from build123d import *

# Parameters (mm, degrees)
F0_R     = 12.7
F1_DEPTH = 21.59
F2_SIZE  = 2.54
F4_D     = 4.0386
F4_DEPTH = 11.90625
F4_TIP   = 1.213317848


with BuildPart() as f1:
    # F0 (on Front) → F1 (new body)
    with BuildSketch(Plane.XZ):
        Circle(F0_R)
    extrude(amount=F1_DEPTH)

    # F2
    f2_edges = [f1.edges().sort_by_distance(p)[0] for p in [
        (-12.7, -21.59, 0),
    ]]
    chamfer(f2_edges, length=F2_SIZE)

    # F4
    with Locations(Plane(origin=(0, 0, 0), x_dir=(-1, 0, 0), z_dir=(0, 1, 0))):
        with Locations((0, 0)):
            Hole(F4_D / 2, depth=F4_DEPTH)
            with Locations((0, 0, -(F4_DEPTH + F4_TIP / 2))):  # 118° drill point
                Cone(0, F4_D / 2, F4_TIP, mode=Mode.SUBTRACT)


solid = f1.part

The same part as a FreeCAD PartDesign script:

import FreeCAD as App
import Part
import Sketcher
Q = App.Units.Quantity


def edges_at(feature, points):
    """Names of the edges that pass closest to the given points."""
    edges = feature.Shape.Edges
    near = lambda p: min(range(len(edges)), key=lambda i: edges[i].distToShape(Part.Vertex(*p))[0])
    return sorted({f"Edge{near(p) + 1}" for p in points})

doc = App.newDocument("Part")
body = doc.addObject("PartDesign::Body", "Body")

sketch1 = doc.addObject("Sketcher::SketchObject", "Sketch")
body.addObject(sketch1)
sketch1.AttachmentSupport = (doc.XZ_Plane, [""])
sketch1.MapMode = "FlatFace"
sketch1.addGeometry(Part.Circle(App.Vector(0, 0, 0), App.Vector(0, 0, 1), 13), False)
sketch1.addConstraint([
    Sketcher.Constraint("Coincident", 0, 3, -1, 1),
    Sketcher.Constraint("Diameter", 0, Q("1 in")),
])
pad1 = doc.addObject("PartDesign::Pad", "Pad")
body.addObject(pad1)
pad1.Profile = sketch1
pad1.Length = Q("0.85 in")
doc.recompute()

chamfer = doc.addObject("PartDesign::Chamfer", "Chamfer")
body.addObject(chamfer)
chamfer.Base = (pad1, edges_at(pad1, [(-12.7, -21.59, 0)]))
chamfer.Size = Q("0.1 in")

sketch2 = doc.addObject("Sketcher::SketchObject", "Sketch001")
body.addObject(sketch2)
sketch2.AttachmentSupport = (doc.XZ_Plane, [""])
sketch2.MapMode = "FlatFace"
sketch2.addGeometry(Part.Circle(App.Vector(0, 0, 0), App.Vector(0, 0, 1), 2), False)
sketch2.addConstraint([
    Sketcher.Constraint("Coincident", 0, 3, -1, 1),
    Sketcher.Constraint("Diameter", 0, Q("0.159 in")),
])
doc.recompute()
hole = doc.addObject("PartDesign::Hole", "Hole")
body.addObject(hole)
hole.Profile = sketch2
hole.ThreadType = "None"
hole.Diameter = Q("0.159 in")
hole.DepthType = "Dimension"
hole.Depth = Q("0.46875 in")
hole.DrillPoint = "Angled"
hole.DrillPointAngle = 118
hole.Reversed = True

doc.recompute()
